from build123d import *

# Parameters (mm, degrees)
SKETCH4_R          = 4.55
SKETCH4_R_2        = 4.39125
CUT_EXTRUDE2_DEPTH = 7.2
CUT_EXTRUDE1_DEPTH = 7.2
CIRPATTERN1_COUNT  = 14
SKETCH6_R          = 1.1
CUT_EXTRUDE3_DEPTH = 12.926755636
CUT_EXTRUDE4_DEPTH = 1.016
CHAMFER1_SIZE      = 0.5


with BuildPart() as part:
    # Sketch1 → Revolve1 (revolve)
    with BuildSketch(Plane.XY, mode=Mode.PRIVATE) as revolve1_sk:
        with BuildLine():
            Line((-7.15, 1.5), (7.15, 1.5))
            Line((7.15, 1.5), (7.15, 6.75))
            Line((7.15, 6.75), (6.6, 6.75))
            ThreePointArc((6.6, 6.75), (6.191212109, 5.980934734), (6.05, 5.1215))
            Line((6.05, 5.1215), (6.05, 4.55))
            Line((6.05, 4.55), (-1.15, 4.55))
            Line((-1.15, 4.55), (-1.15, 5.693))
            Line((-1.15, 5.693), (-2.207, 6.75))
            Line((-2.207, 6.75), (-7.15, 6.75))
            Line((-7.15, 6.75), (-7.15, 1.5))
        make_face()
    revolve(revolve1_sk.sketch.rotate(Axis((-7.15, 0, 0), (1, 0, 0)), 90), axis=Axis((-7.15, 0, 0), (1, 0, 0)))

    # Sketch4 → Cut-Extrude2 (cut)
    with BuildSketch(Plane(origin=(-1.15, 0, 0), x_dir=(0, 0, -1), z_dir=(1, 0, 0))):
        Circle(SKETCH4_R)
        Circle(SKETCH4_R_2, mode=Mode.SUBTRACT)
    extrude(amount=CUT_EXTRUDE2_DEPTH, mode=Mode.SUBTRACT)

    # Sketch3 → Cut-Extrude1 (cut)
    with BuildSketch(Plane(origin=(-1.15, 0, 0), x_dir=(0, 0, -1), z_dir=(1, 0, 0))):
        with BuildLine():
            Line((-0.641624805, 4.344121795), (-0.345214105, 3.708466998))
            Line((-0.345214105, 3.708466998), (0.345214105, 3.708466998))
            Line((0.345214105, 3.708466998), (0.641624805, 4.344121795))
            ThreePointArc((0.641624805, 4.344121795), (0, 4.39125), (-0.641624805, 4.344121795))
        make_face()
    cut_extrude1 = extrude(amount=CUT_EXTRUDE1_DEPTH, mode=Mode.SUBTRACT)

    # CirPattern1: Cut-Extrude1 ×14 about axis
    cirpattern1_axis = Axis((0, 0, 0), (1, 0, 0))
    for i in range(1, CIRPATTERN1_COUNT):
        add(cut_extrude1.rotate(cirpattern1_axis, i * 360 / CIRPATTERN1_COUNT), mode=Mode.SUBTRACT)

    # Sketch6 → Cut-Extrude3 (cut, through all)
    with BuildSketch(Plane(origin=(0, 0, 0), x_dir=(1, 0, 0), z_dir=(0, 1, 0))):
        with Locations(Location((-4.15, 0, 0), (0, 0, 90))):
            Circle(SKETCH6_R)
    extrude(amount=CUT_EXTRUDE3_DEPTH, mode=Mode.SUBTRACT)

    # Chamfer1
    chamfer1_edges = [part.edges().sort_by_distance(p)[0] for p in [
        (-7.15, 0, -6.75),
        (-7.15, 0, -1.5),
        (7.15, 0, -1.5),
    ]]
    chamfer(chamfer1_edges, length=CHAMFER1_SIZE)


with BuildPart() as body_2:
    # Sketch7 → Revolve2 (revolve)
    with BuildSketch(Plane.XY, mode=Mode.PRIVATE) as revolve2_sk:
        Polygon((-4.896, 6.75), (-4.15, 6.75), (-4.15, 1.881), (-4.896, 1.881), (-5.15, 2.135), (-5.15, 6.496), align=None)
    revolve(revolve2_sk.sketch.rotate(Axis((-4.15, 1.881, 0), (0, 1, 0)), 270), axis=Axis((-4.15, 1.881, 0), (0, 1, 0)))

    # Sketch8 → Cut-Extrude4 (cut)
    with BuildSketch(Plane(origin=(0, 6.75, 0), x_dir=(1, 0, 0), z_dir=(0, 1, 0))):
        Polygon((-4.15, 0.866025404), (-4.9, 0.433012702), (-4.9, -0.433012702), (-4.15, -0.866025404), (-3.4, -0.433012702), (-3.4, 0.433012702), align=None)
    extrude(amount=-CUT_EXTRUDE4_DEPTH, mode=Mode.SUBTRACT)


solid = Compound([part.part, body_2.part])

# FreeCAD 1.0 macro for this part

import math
import FreeCAD as App
import Part
import Sketcher
from FreeCAD import Vector
Q = App.Units.Quantity


def edges_at(feature, points):
    """Names of the edges that pass closest to the given points."""
    edges = feature.Shape.Edges
    near = lambda p: min(range(len(edges)), key=lambda i: edges[i].distToShape(Part.Vertex(*p))[0])
    return sorted({f"Edge{near(p) + 1}" for p in points})


def add_polygon(sketch, points):
    """Adds a closed chain of lines whose ends are joined by coincident constraints."""
    first, n = sketch.GeometryCount, len(points)
    for a, b in zip(points, points[1:] + points[:1]):
        sketch.addGeometry(Part.LineSegment(App.Vector(*a, 0), App.Vector(*b, 0)), False)
    for i in range(n):
        sketch.addConstraint(Sketcher.Constraint("Coincident", first + i, 2, first + (i + 1) % n, 1))

doc = App.newDocument("Part")
params = doc.addObject("Spreadsheet::Sheet", "Params")
for row, (alias, value) in enumerate([
    ("sketch1_width", "14.3 mm"),
    ("sketch1_width2", "7.2 mm"),
    ("sketch1_width3", "0.55 mm"),
    ("sketch1_height", "5.25 mm"),
    ("revolution_angle", "360 deg"),
    ("sketch2_diameter", "9.1 mm"),
    ("pocket1_length", "7.2 mm"),
    ("pocket2_length", "7.2 mm"),
    ("sketch4_diameter", "2.2 mm"),
    ("chamfer_size", "0.5 mm"),
    ("revolution2_angle", "360 deg"),
    ("pocket4_length", "1.016 mm"),
], start=1):
    params.set(f"A{row}", alias)
    params.set(f"B{row}", "=" + value)
    params.setAlias(f"B{row}", alias)

body = doc.addObject("PartDesign::Body", "Body")

# Sketch on XY plane
sketch1 = body.newObject("Sketcher::SketchObject", "Sketch")
sketch1.AttachmentSupport = (doc.getObject("XY_Plane"), [""])
sketch1.MapMode = "FlatFace"
sketch1.addGeometry(Part.LineSegment(Vector(-7.15, 1.5, 0), Vector(7.15, 1.5, 0)), False)
sketch1.addGeometry(Part.LineSegment(Vector(7.15, 1.5, 0), Vector(7.15, 6.75, 0)), False)
sketch1.addGeometry(Part.LineSegment(Vector(7.15, 6.75, 0), Vector(6.6, 6.75, 0)), False)
sketch1.addGeometry(Part.ArcOfCircle(Part.Circle(Vector(8.73592, 5.1215, 0), Vector(0, 0, 1), 2.68592), math.radians(142.67684), math.radians(180)), False)
sketch1.addGeometry(Part.LineSegment(Vector(6.05, 5.1215, 0), Vector(6.05, 4.55, 0)), False)
sketch1.addGeometry(Part.LineSegment(Vector(6.05, 4.55, 0), Vector(-1.15, 4.55, 0)), False)
sketch1.addGeometry(Part.LineSegment(Vector(-1.15, 4.55, 0), Vector(-1.15, 5.693, 0)), False)
sketch1.addGeometry(Part.LineSegment(Vector(-1.15, 5.693, 0), Vector(-2.207, 6.75, 0)), False)
sketch1.addGeometry(Part.LineSegment(Vector(-2.207, 6.75, 0), Vector(-7.15, 6.75, 0)), False)
sketch1.addGeometry(Part.LineSegment(Vector(-7.15, 6.75, 0), Vector(-7.15, 1.5, 0)), False)
sketch1.addConstraint(Sketcher.Constraint("Coincident", 0, 2, 1, 1))
sketch1.addConstraint(Sketcher.Constraint("Coincident", 1, 2, 2, 1))
sketch1.addConstraint(Sketcher.Constraint("Coincident", 2, 2, 3, 1))
sketch1.addConstraint(Sketcher.Constraint("Tangent", 3, 2, 4, 1))
sketch1.addConstraint(Sketcher.Constraint("Coincident", 4, 2, 5, 1))
sketch1.addConstraint(Sketcher.Constraint("Coincident", 5, 2, 6, 1))
sketch1.addConstraint(Sketcher.Constraint("Coincident", 6, 2, 7, 1))
sketch1.addConstraint(Sketcher.Constraint("Coincident", 7, 2, 8, 1))
sketch1.addConstraint(Sketcher.Constraint("Coincident", 8, 2, 9, 1))
sketch1.addConstraint(Sketcher.Constraint("Coincident", 9, 2, 0, 1))
sketch1.addConstraint(Sketcher.Constraint("Horizontal", 0))
sketch1.addConstraint(Sketcher.Constraint("Vertical", 1))
sketch1.addConstraint(Sketcher.Constraint("Horizontal", 2))
sketch1.addConstraint(Sketcher.Constraint("Vertical", 4))
sketch1.addConstraint(Sketcher.Constraint("Horizontal", 5))
sketch1.addConstraint(Sketcher.Constraint("Vertical", 6))
sketch1.addConstraint(Sketcher.Constraint("Horizontal", 8))
sketch1.addConstraint(Sketcher.Constraint("Vertical", 9))
sketch1.addConstraint(Sketcher.Constraint("Symmetric", 1, 2, 8, 2, -2))
sketch1.addConstraint(Sketcher.Constraint("Angle", 7, Q("135 deg")))
sketch1.addConstraint(Sketcher.Constraint("DistanceX", 0, 1, 0, 2, Q("14.3 mm")))
sketch1.addConstraint(Sketcher.Constraint("DistanceX", 5, 2, 5, 1, Q("7.2 mm")))
sketch1.addConstraint(Sketcher.Constraint("DistanceX", 8, 2, 6, 2, Q("6 mm")))
sketch1.addConstraint(Sketcher.Constraint("DistanceX", 2, 2, 2, 1, Q("0.55 mm")))
sketch1.addConstraint(Sketcher.Constraint("DistanceY", 1, 1, 1, 2, Q("5.25 mm")))
sketch1.addConstraint(Sketcher.Constraint("DistanceY", -1, 1, 0, 2, Q("1.5 mm")))
sketch1.addConstraint(Sketcher.Constraint("DistanceY", 4, 2, 2, 2, Q("2.2 mm")))
sketch1.addConstraint(Sketcher.Constraint("DistanceX", 8, 2, 8, 1, Q("4.943 mm")))
sketch1.addConstraint(Sketcher.Constraint("Radius", 3, Q("2.68592 mm")))
sketch1.setExpression("Constraints[20]", "Params.sketch1_width")
sketch1.setExpression("Constraints[21]", "Params.sketch1_width2")
sketch1.setExpression("Constraints[23]", "Params.sketch1_width3")
sketch1.setExpression("Constraints[24]", "Params.sketch1_height")
revolution = body.newObject("PartDesign::Revolution", "Revolution")
revolution.Profile = sketch1
revolution.ReferenceAxis = (sketch1, ["H_Axis"])
revolution.setExpression("Angle", "Params.revolution_angle")

# Sketch on YZ plane
sketch2 = body.newObject("Sketcher::SketchObject", "Sketch001")
sketch2.AttachmentSupport = (doc.getObject("YZ_Plane"), [""])
sketch2.MapMode = "FlatFace"
sketch2.AttachmentOffset = App.Placement(Vector(0, 0, -1.15), App.Rotation())
sketch2.addGeometry(Part.Circle(Vector(0, 0, 0), Vector(0, 0, 1), 4.55), False)
sketch2.addGeometry(Part.Circle(Vector(0, 0, 0), Vector(0, 0, 1), 4.39125), False)
sketch2.addConstraint(Sketcher.Constraint("Coincident", 0, 3, -1, 1))
sketch2.addConstraint(Sketcher.Constraint("Coincident", 1, 3, -1, 1))
sketch2.addConstraint(Sketcher.Constraint("Diameter", 0, Q("9.1 mm")))
sketch2.addConstraint(Sketcher.Constraint("Diameter", 1, Q("8.7825 mm")))
sketch2.setExpression("Constraints[2]", "Params.sketch2_diameter")
pocket1 = body.newObject("PartDesign::Pocket", "Pocket")
pocket1.Profile = sketch2
pocket1.setExpression("Length", "Params.pocket1_length")
pocket1.Reversed = True

# Sketch on YZ plane
sketch3 = body.newObject("Sketcher::SketchObject", "Sketch002")
sketch3.AttachmentSupport = (doc.getObject("YZ_Plane"), [""])
sketch3.MapMode = "FlatFace"
sketch3.AttachmentOffset = App.Placement(Vector(0, 0, -1.15), App.Rotation())
sketch3.addGeometry(Part.LineSegment(Vector(4.344122, 0.641625, 0), Vector(3.708467, 0.345214, 0)), False)
sketch3.addGeometry(Part.LineSegment(Vector(3.708467, 0.345214, 0), Vector(3.708467, -0.345214, 0)), False)
sketch3.addGeometry(Part.LineSegment(Vector(3.708467, -0.345214, 0), Vector(4.344122, -0.641625, 0)), False)
sketch3.addGeometry(Part.ArcOfCircle(Part.Circle(Vector(0, 0, 0), Vector(0, 0, 1), 4.39125), math.radians(-8.401816), math.radians(8.401816)), False)
sketch3.addConstraint(Sketcher.Constraint("Coincident", 0, 2, 1, 1))
sketch3.addConstraint(Sketcher.Constraint("Coincident", 1, 2, 2, 1))
sketch3.addConstraint(Sketcher.Constraint("Coincident", 2, 2, 3, 1))
sketch3.addConstraint(Sketcher.Constraint("Coincident", 3, 2, 0, 1))
sketch3.addConstraint(Sketcher.Constraint("Vertical", 1))
sketch3.addConstraint(Sketcher.Constraint("Coincident", 3, 3, -1, 1))
sketch3.addConstraint(Sketcher.Constraint("Vertical", 2, 2, 3, 2))
sketch3.addConstraint(Sketcher.Constraint("Equal", 0, 2))
sketch3.addConstraint(Sketcher.Constraint("Angle", 0, Q("-155 deg")))
sketch3.addConstraint(Sketcher.Constraint("Radius", 3, Q("4.39125 mm")))
sketch3.addConstraint(Sketcher.Constraint("DistanceY", 1, 2, 1, 1, Q("0.690428 mm")))
sketch3.addConstraint(Sketcher.Constraint("DistanceX", -1, 1, 2, 2, Q("4.344122 mm")))
pocket2 = body.newObject("PartDesign::Pocket", "Pocket001")
pocket2.Profile = sketch3
pocket2.setExpression("Length", "Params.pocket2_length")
pocket2.Reversed = True
doc.recompute()

polarpattern = body.newObject("PartDesign::PolarPattern", "PolarPattern")
polarpattern.Originals = [pocket2]
polarpattern.Axis = (doc.getObject("X_Axis"), [""])
polarpattern.Angle = 360
polarpattern.Occurrences = 14
body.Tip = polarpattern

# Sketch on XZ plane
sketch4 = body.newObject("Sketcher::SketchObject", "Sketch003")
sketch4.AttachmentSupport = (doc.getObject("XZ_Plane"), [""])
sketch4.MapMode = "FlatFace"
sketch4.addGeometry(Part.Circle(Vector(-4.15, 0, 0), Vector(0, 0, 1), 1.1), False)
sketch4.addConstraint(Sketcher.Constraint("PointOnObject", 0, 3, -1))
sketch4.addConstraint(Sketcher.Constraint("Diameter", 0, Q("2.2 mm")))
sketch4.addConstraint(Sketcher.Constraint("DistanceX", 0, 3, -1, 1, Q("4.15 mm")))
sketch4.setExpression("Constraints[1]", "Params.sketch4_diameter")
pocket3 = body.newObject("PartDesign::Pocket", "Pocket002")
pocket3.Profile = sketch4
pocket3.Type = "ThroughAll"
doc.recompute()

chamfer = body.newObject("PartDesign::Chamfer", "Chamfer")
chamfer.Base = (pocket3, edges_at(pocket3, [(-7.15, 0, -6.75), (-7.15, 0, -1.5), (7.15, 0, -1.5)]))
chamfer.setExpression("Size", "Params.chamfer_size")
body2 = doc.addObject("PartDesign::Body", "Body001")

# Sketch on XY plane
sketch5 = body2.newObject("Sketcher::SketchObject", "Sketch004")
sketch5.AttachmentSupport = (doc.getObject("XY_Plane001"), [""])
sketch5.MapMode = "FlatFace"
add_polygon(sketch5, [(-4.15, 6.75), (-4.896, 6.75), (-5.15, 6.496), (-5.15, 2.135), (-4.896, 1.881), (-4.15, 1.881)])  # lines 0-5
sketch5.addGeometry(Part.LineSegment(Vector(-4.15, 1.881, 0), Vector(-4.15, 6.75, 0)), True)  # axis
sketch5.addConstraint(Sketcher.Constraint("Horizontal", 0))
sketch5.addConstraint(Sketcher.Constraint("Vertical", 2))
sketch5.addConstraint(Sketcher.Constraint("Horizontal", 4))
sketch5.addConstraint(Sketcher.Constraint("Vertical", 5))
sketch5.addConstraint(Sketcher.Constraint("Vertical", 6))
sketch5.addConstraint(Sketcher.Constraint("Coincident", 6, 1, 4, 2))
sketch5.addConstraint(Sketcher.Constraint("Perpendicular", 1, 3))
sketch5.addConstraint(Sketcher.Constraint("Horizontal", 0, 2, 6, 2))
sketch5.addConstraint(Sketcher.Constraint("Vertical", 0, 2, 3, 2))
sketch5.addConstraint(Sketcher.Constraint("Equal", 1, 3))
sketch5.addConstraint(Sketcher.Constraint("DistanceX", 2, 2, 4, 2, Q("1 mm")))
sketch5.addConstraint(Sketcher.Constraint("DistanceX", 0, 2, 0, 1, Q("0.746 mm")))
sketch5.addConstraint(Sketcher.Constraint("DistanceY", 2, 2, 2, 1, Q("4.361 mm")))
sketch5.addConstraint(Sketcher.Constraint("DistanceY", -1, 1, 0, 2, Q("6.75 mm")))
sketch5.addConstraint(Sketcher.Constraint("DistanceX", 1, 2, -1, 1, Q("5.15 mm")))
revolution2 = body2.newObject("PartDesign::Revolution", "Revolution001")
revolution2.Profile = sketch5
revolution2.ReferenceAxis = (sketch5, ["Axis0"])
revolution2.setExpression("Angle", "Params.revolution2_angle")

# Sketch on XZ plane
sketch6 = body2.newObject("Sketcher::SketchObject", "Sketch005")
sketch6.AttachmentSupport = (doc.getObject("XZ_Plane001"), [""])
sketch6.MapMode = "FlatFace"
sketch6.AttachmentOffset = App.Placement(Vector(0, 0, -6.75), App.Rotation())
add_polygon(sketch6, [(-4.15, -0.866025), (-4.9, -0.433013), (-4.9, 0.433013), (-4.15, 0.866025), (-3.4, 0.433013), (-3.4, -0.433013)])  # lines 0-5
sketch6.addConstraint(Sketcher.Constraint("Vertical", 1))
sketch6.addConstraint(Sketcher.Constraint("Vertical", 4))
sketch6.addConstraint(Sketcher.Constraint("Symmetric", 2, 2, 5, 2, -1))
sketch6.addConstraint(Sketcher.Constraint("Parallel", 0, 3))
sketch6.addConstraint(Sketcher.Constraint("Parallel", 2, 5))
sketch6.addConstraint(Sketcher.Constraint("Horizontal", 1, 2, 3, 2))
sketch6.addConstraint(Sketcher.Constraint("Horizontal", 0, 2, 4, 2))
sketch6.addConstraint(Sketcher.Constraint("Angle", 0, Q("150 deg")))
sketch6.addConstraint(Sketcher.Constraint("DistanceX", 0, 2, -1, 1, Q("4.9 mm")))
sketch6.addConstraint(Sketcher.Constraint("DistanceX", 3, 2, -1, 1, Q("3.4 mm")))
sketch6.addConstraint(Sketcher.Constraint("DistanceY", 1, 1, 1, 2, Q("0.866025 mm")))
pocket4 = body2.newObject("PartDesign::Pocket", "Pocket003")
pocket4.Profile = sketch6
pocket4.setExpression("Length", "Params.pocket4_length")
pocket4.Reversed = True

doc.recompute()
